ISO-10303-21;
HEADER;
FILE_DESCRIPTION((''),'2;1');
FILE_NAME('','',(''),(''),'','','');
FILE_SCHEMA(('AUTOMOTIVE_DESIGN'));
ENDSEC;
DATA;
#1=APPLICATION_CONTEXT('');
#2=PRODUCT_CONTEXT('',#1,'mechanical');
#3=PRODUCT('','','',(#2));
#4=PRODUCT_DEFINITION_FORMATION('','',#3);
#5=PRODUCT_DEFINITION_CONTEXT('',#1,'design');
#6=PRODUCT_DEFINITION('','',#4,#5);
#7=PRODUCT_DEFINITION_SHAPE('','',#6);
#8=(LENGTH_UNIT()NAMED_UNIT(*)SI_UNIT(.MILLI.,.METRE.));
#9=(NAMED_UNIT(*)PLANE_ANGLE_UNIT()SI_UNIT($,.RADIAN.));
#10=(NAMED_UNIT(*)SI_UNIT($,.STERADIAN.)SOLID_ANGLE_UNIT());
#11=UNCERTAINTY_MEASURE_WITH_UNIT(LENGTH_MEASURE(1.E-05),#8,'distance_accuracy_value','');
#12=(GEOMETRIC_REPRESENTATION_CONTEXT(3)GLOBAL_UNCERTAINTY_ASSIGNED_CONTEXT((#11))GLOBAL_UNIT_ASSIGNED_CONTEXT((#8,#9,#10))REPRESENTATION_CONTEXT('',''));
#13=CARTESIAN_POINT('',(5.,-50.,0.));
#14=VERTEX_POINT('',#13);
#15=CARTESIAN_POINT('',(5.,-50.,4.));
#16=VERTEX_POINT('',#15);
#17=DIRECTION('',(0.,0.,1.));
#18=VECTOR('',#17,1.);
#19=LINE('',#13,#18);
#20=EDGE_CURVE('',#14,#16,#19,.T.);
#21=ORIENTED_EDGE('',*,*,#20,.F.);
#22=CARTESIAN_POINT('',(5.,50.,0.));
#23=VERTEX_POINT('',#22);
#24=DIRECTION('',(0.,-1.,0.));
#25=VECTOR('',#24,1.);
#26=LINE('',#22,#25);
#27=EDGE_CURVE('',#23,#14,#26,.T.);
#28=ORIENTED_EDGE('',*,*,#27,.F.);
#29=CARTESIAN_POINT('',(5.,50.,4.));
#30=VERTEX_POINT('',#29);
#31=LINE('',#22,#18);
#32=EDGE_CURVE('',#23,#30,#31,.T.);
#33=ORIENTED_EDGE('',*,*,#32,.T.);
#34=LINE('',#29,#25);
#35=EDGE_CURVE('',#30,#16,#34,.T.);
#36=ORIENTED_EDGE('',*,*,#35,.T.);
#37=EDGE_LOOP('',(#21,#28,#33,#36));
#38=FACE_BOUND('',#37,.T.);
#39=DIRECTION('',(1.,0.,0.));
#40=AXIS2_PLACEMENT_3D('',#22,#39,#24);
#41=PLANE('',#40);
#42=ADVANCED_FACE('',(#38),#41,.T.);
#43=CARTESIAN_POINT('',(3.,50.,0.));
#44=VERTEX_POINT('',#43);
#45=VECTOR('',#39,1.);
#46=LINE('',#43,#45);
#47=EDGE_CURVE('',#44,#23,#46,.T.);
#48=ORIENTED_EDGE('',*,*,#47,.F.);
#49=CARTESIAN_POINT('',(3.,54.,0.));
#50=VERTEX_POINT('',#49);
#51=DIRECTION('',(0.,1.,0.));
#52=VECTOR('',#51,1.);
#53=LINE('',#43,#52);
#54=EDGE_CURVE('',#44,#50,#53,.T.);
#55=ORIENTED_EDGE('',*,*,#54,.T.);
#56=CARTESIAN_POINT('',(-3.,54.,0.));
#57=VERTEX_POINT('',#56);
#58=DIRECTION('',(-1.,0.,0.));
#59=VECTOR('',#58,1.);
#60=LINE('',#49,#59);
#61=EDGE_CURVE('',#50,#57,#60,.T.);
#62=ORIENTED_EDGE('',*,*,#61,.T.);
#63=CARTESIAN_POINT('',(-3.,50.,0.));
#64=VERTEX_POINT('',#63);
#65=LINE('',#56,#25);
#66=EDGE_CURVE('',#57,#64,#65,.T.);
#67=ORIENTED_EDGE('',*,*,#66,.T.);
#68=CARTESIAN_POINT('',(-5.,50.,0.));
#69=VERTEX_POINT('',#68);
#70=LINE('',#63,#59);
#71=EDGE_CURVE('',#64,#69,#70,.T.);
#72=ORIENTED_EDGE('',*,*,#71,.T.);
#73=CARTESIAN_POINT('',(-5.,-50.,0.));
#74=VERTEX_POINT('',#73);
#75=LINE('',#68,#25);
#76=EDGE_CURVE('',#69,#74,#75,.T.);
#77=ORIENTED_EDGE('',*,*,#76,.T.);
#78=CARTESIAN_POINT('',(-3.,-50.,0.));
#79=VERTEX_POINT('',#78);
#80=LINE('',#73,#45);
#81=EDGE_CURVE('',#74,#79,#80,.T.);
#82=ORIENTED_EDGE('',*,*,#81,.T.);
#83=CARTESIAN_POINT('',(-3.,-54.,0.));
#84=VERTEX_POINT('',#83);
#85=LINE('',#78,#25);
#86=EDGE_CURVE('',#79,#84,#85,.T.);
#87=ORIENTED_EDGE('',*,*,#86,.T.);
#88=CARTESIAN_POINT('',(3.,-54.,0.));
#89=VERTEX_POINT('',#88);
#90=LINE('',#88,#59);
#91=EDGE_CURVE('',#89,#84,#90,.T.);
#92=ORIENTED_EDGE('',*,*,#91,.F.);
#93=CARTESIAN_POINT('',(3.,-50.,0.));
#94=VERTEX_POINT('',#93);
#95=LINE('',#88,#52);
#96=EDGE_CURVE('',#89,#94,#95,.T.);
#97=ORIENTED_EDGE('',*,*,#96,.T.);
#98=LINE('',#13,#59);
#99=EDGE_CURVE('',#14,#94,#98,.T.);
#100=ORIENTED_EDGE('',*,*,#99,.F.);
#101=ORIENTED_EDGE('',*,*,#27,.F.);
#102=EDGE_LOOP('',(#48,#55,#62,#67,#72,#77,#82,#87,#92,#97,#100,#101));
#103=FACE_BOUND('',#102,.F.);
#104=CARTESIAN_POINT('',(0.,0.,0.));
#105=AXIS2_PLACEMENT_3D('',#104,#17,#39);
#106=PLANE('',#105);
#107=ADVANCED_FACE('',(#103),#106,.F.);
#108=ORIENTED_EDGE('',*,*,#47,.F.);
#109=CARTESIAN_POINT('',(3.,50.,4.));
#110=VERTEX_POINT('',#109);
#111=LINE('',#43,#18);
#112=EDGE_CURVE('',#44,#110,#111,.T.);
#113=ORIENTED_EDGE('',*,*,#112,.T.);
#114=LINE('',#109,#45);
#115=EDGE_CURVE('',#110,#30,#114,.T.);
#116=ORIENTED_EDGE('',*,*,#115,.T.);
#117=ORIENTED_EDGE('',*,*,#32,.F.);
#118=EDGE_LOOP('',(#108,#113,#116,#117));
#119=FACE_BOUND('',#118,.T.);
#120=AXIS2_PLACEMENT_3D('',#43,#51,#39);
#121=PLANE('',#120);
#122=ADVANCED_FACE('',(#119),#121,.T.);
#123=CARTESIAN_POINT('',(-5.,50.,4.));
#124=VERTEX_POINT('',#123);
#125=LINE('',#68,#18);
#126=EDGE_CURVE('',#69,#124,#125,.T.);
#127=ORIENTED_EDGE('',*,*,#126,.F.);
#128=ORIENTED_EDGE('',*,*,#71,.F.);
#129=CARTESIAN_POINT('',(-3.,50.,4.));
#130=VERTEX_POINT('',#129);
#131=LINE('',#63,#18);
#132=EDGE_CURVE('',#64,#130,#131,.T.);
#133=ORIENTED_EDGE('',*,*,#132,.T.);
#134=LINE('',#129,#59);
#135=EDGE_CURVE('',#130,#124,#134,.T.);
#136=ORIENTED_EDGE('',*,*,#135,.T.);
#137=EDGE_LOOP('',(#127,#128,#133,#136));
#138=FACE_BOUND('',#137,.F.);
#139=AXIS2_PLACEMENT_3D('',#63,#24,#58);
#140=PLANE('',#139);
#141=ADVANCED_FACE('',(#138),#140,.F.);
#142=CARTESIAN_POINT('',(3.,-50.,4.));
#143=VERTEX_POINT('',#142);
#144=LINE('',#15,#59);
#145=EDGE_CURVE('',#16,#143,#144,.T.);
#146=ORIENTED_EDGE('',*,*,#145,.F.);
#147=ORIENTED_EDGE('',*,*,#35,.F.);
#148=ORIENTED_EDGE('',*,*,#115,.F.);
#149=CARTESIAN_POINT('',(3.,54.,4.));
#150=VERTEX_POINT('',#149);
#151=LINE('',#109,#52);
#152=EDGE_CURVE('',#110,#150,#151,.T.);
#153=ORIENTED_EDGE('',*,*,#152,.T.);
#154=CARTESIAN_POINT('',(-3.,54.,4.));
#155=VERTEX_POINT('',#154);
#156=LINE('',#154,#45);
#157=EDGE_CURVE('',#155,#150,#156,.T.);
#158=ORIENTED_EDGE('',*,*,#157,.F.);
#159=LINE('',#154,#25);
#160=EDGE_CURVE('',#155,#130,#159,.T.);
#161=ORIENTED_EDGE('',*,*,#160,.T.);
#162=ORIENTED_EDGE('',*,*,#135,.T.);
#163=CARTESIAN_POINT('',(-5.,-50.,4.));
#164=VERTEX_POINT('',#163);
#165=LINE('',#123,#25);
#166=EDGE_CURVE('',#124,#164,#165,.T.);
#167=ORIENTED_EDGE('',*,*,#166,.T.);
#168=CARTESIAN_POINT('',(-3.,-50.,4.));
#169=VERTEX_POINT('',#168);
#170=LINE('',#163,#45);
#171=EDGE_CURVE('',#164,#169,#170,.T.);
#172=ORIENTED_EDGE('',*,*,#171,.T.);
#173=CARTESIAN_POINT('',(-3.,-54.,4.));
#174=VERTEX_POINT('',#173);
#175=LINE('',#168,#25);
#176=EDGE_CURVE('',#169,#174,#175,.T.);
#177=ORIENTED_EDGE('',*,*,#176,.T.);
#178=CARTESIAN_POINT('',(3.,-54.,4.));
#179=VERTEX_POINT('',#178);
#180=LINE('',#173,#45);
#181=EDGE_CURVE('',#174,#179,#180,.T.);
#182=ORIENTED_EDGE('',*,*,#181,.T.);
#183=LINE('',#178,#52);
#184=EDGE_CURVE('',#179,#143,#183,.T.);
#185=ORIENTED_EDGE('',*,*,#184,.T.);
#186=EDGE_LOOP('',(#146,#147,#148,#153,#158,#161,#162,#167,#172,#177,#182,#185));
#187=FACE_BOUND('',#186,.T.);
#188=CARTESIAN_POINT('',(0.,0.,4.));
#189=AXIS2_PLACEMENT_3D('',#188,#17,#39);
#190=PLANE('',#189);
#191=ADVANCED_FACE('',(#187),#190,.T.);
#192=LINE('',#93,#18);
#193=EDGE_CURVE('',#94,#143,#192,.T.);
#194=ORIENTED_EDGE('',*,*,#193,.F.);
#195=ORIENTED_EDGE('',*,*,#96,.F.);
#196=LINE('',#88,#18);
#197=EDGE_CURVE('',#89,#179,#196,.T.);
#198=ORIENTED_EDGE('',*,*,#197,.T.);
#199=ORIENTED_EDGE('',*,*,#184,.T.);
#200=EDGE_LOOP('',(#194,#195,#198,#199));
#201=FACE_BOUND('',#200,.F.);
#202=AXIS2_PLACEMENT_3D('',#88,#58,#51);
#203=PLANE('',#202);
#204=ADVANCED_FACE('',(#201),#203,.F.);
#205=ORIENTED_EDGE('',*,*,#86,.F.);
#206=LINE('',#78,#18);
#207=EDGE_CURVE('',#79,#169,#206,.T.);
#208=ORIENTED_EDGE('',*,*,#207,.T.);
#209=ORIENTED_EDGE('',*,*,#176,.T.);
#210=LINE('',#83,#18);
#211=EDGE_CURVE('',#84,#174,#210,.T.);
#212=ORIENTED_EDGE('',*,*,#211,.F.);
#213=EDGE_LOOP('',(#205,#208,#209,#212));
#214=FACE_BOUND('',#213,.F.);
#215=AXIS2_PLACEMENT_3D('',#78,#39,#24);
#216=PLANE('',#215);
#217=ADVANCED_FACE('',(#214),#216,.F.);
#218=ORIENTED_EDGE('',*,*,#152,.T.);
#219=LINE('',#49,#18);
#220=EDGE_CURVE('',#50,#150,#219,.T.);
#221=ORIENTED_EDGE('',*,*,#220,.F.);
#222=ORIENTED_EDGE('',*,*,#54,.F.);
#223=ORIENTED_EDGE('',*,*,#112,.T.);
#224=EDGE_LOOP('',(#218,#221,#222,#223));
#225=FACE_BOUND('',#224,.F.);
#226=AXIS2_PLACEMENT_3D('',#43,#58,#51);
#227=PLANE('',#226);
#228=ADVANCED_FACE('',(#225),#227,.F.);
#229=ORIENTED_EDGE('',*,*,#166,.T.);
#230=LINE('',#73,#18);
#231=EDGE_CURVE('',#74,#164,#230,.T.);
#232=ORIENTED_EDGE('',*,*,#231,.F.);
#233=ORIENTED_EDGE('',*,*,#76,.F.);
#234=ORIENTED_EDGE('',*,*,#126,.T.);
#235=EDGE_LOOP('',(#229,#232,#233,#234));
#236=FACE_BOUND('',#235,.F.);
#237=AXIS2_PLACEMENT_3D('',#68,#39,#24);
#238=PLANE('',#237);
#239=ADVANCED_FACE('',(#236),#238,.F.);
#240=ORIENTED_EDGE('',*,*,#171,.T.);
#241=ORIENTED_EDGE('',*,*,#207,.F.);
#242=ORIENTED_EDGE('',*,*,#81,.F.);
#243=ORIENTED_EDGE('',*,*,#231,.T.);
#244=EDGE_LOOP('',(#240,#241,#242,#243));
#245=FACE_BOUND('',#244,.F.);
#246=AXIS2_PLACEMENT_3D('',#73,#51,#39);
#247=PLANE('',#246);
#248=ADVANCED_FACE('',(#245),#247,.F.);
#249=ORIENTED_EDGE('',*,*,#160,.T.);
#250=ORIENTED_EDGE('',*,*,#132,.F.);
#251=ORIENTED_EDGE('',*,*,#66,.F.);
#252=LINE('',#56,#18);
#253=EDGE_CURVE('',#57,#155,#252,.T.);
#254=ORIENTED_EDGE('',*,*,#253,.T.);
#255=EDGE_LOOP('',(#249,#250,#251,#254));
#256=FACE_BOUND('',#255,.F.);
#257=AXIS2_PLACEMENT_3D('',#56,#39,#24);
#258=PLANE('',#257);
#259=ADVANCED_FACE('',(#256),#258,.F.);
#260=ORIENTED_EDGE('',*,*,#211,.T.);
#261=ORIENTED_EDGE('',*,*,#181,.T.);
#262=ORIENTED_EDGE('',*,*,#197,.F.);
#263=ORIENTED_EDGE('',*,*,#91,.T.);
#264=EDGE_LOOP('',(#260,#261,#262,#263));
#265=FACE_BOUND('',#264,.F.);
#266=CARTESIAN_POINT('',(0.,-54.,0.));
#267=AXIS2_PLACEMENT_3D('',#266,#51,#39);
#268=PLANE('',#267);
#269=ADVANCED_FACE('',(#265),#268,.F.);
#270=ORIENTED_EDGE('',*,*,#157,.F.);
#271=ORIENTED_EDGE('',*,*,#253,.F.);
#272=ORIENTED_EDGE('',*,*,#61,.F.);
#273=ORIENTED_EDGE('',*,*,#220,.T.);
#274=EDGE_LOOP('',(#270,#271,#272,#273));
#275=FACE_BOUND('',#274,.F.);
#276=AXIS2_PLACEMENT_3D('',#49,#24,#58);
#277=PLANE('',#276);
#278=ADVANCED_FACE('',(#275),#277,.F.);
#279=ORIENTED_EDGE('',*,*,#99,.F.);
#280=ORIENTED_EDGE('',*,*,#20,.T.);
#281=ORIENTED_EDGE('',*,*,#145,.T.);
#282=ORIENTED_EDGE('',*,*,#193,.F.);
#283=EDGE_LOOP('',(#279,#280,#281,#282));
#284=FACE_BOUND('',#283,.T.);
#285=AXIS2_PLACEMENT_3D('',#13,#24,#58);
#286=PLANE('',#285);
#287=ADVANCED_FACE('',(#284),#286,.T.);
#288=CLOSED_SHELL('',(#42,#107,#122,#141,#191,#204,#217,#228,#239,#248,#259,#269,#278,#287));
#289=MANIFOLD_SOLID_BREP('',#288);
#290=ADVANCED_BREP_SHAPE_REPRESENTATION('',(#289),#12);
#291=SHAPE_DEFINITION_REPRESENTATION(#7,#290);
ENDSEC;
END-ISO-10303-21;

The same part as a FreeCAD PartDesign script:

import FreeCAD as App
import Part
import Sketcher
from FreeCAD import Vector


def add_polygon(sketch, points):
    """Adds a closed chain of lines whose ends are joined by coincident constraints."""
    first, n = sketch.GeometryCount, len(points)
    for a, b in zip(points, points[1:] + points[:1]):
        sketch.addGeometry(Part.LineSegment(App.Vector(*a, 0), App.Vector(*b, 0)), False)
    for i in range(n):
        sketch.addConstraint(Sketcher.Constraint("Coincident", first + i, 2, first + (i + 1) % n, 1))

doc = App.newDocument("Part")
body = doc.addObject("PartDesign::Body", "Body")

sketch1 = body.newObject("Sketcher::SketchObject", "Sketch")
sketch1.AttachmentSupport = (doc.getObject("XY_Plane"), [""])
sketch1.MapMode = "FlatFace"
add_polygon(sketch1, [(3, 50), (3, 54), (-3, 54), (-3, 50), (-5, 50), (-5, -50), (-3, -50), (-3, -54), (3, -54), (3, -50), (5, -50), (5, 50)])
sketch1.addConstraint([
    Sketcher.Constraint("Vertical", 0),
    Sketcher.Constraint("Horizontal", 1),
    Sketcher.Constraint("Vertical", 2),
    Sketcher.Constraint("Horizontal", 3),
    Sketcher.Constraint("Vertical", 4),
    Sketcher.Constraint("Horizontal", 5),
    Sketcher.Constraint("Vertical", 6),
    Sketcher.Constraint("Horizontal", 7),
    Sketcher.Constraint("Vertical", 8),
    Sketcher.Constraint("Horizontal", 9),
    Sketcher.Constraint("Vertical", 10),
    Sketcher.Constraint("Horizontal", 11),
    Sketcher.Constraint("Symmetric", 0, 2, 6, 2, -1, 1),
    Sketcher.Constraint("Symmetric", 2, 2, 8, 2, -1, 1),
    Sketcher.Constraint("Symmetric", 4, 2, 10, 2, -1, 1),
    Sketcher.Constraint("Symmetric", 5, 2, 8, 2, -2),
    Sketcher.Constraint("DistanceX", 1, 2, 1, 1, 6.0),
    Sketcher.Constraint("DistanceX", 3, 2, 3, 1, 2.0),
    Sketcher.Constraint("DistanceY", 0, 1, 0, 2, 4.0),
    Sketcher.Constraint("DistanceY", 6, 2, 1, 2, 108.0),
])
pad1 = body.newObject("PartDesign::Pad", "Pad")
pad1.Profile = sketch1
pad1.Length = 4

doc.recompute()
